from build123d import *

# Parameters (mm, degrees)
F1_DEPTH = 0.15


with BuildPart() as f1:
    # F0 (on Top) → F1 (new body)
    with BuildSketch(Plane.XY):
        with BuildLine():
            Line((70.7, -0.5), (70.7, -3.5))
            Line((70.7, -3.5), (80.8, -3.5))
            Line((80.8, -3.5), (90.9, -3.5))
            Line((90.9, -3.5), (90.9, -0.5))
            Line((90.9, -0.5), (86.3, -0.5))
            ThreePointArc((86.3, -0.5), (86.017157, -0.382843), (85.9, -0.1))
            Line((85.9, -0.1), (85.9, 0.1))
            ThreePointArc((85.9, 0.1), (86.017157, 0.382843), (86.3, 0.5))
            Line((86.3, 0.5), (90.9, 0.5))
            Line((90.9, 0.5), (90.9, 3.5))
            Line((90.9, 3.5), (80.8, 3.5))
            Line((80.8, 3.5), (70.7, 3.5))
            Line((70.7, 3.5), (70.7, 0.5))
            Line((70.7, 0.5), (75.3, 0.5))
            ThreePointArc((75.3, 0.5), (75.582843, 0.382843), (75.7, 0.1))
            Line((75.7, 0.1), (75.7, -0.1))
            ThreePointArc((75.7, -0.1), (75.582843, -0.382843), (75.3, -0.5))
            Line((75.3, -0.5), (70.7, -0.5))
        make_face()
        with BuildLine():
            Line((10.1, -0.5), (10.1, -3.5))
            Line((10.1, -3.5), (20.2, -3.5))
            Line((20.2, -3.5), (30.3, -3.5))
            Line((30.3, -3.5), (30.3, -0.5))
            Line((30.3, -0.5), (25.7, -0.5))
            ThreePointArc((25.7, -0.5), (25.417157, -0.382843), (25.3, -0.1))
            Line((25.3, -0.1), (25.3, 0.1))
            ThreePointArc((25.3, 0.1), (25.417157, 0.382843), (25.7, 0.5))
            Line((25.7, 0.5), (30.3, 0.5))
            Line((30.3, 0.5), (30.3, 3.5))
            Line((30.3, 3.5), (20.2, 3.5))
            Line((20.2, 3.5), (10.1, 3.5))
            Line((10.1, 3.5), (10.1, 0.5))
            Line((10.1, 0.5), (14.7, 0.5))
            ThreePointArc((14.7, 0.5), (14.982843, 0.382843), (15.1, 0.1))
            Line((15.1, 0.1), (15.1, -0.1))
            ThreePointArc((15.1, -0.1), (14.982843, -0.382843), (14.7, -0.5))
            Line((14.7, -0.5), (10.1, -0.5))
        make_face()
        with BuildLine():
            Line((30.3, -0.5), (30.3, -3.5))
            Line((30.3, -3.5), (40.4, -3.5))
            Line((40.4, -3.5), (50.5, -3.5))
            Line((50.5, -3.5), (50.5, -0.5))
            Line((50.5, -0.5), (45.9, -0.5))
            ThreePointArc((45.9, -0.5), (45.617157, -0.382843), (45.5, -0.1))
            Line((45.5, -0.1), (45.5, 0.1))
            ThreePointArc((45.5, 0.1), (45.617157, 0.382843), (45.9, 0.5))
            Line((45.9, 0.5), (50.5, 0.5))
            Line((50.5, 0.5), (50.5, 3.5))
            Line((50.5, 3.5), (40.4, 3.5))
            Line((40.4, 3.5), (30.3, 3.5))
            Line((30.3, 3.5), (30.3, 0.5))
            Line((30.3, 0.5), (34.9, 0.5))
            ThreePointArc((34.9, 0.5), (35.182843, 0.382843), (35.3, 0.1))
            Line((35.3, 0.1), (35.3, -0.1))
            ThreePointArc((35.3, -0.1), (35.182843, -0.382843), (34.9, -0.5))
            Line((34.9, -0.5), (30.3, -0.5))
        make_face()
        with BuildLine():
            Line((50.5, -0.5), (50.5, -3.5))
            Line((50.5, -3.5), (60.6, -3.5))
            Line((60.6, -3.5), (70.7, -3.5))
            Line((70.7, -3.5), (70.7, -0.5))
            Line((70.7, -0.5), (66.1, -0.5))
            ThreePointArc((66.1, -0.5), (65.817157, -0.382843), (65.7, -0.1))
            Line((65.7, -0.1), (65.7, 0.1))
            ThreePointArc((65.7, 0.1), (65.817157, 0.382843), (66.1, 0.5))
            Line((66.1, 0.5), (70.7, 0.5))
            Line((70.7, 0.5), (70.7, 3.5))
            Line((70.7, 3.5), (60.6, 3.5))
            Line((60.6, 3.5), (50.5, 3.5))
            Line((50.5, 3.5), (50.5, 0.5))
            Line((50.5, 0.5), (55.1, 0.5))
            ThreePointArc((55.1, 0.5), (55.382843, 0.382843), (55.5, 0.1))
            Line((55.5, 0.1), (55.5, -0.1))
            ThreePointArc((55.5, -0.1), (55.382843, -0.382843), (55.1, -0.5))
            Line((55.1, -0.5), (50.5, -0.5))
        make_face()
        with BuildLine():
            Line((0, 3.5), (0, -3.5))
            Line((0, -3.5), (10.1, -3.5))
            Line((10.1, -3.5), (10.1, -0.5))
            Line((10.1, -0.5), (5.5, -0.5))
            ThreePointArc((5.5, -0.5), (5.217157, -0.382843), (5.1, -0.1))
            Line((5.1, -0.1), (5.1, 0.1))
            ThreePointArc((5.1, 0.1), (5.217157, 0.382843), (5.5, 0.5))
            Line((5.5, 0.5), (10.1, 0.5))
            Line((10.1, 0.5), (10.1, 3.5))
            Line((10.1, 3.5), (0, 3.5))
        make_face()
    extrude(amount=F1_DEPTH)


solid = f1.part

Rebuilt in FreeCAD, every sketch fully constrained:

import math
import FreeCAD as App
import Part
import Sketcher
from FreeCAD import Vector

doc = App.newDocument("Part")
params = doc.addObject("Spreadsheet::Sheet", "Params")
for row, (alias, value) in enumerate([
    ("sketch1_radius", "0.399999 mm"),
    ("sketch1_height", "3 mm"),
    ("sketch1_height2", "7 mm"),
    ("sketch1_width", "4.6 mm"),
    ("sketch1_width2", "90.9 mm"),
    ("pad1_length", "0.15 mm"),
], start=1):
    params.set(f"A{row}", alias)
    params.set(f"B{row}", "=" + value)
    params.setAlias(f"B{row}", alias)

body = doc.addObject("PartDesign::Body", "Body")

sketch1 = body.newObject("Sketcher::SketchObject", "Sketch")
sketch1.AttachmentSupport = (doc.getObject("XY_Plane"), [""])
sketch1.MapMode = "FlatFace"
sketch1.addGeometry(Part.LineSegment(Vector(90.9, -3.5, 0), Vector(90.9, -0.5, 0)), False)
sketch1.addGeometry(Part.LineSegment(Vector(90.9, -0.5, 0), Vector(86.3, -0.5, 0)), False)
sketch1.addGeometry(Part.ArcOfCircle(Part.Circle(Vector(86.299999, -0.100001, 0), Vector(0, 0, 1), 0.399999), math.radians(179.999859), math.radians(270.000141)), False)
sketch1.addGeometry(Part.LineSegment(Vector(85.9, -0.1, 0), Vector(85.9, 0.1, 0)), False)
sketch1.addGeometry(Part.ArcOfCircle(Part.Circle(Vector(86.299999, 0.100001, 0), Vector(0, 0, 1), 0.399999), math.radians(89.999859), math.radians(180.000141)), False)
sketch1.addGeometry(Part.LineSegment(Vector(86.3, 0.5, 0), Vector(90.9, 0.5, 0)), False)
sketch1.addGeometry(Part.LineSegment(Vector(90.9, 0.5, 0), Vector(90.9, 3.5, 0)), False)
sketch1.addGeometry(Part.LineSegment(Vector(90.9, 3.5, 0), Vector(0, 3.5, 0)), False)
sketch1.addGeometry(Part.LineSegment(Vector(0, 3.5, 0), Vector(0, -3.5, 0)), False)
sketch1.addGeometry(Part.LineSegment(Vector(0, -3.5, 0), Vector(90.9, -3.5, 0)), False)
sketch1.addGeometry(Part.ArcOfCircle(Part.Circle(Vector(14.700001, 0.100001, 0), Vector(0, 0, 1), 0.399999), math.radians(-0.000141), math.radians(90.000141)), False)
sketch1.addGeometry(Part.LineSegment(Vector(15.1, 0.1, 0), Vector(15.1, -0.1, 0)), False)
sketch1.addGeometry(Part.ArcOfCircle(Part.Circle(Vector(14.700001, -0.100001, 0), Vector(0, 0, 1), 0.399999), math.radians(-90.000141), math.radians(0.000141)), False)
sketch1.addGeometry(Part.LineSegment(Vector(14.7, -0.5, 0), Vector(5.5, -0.5, 0)), False)
sketch1.addGeometry(Part.ArcOfCircle(Part.Circle(Vector(5.499999, -0.100001, 0), Vector(0, 0, 1), 0.399999), math.radians(179.999859), math.radians(270.000141)), False)
sketch1.addGeometry(Part.LineSegment(Vector(5.1, -0.1, 0), Vector(5.1, 0.1, 0)), False)
sketch1.addGeometry(Part.ArcOfCircle(Part.Circle(Vector(5.499999, 0.100001, 0), Vector(0, 0, 1), 0.399999), math.radians(89.999859), math.radians(180.000141)), False)
sketch1.addGeometry(Part.LineSegment(Vector(5.5, 0.5, 0), Vector(14.7, 0.5, 0)), False)
sketch1.addGeometry(Part.ArcOfCircle(Part.Circle(Vector(75.300001, 0.100001, 0), Vector(0, 0, 1), 0.399999), math.radians(-0.000141), math.radians(90.000141)), False)
sketch1.addGeometry(Part.LineSegment(Vector(75.7, 0.1, 0), Vector(75.7, -0.1, 0)), False)
sketch1.addGeometry(Part.ArcOfCircle(Part.Circle(Vector(75.300001, -0.100001, 0), Vector(0, 0, 1), 0.399999), math.radians(-90.000141), math.radians(0.000141)), False)
sketch1.addGeometry(Part.LineSegment(Vector(75.3, -0.5, 0), Vector(66.1, -0.5, 0)), False)
sketch1.addGeometry(Part.ArcOfCircle(Part.Circle(Vector(66.099999, -0.100001, 0), Vector(0, 0, 1), 0.399999), math.radians(179.999859), math.radians(270.000141)), False)
sketch1.addGeometry(Part.LineSegment(Vector(65.7, -0.1, 0), Vector(65.7, 0.1, 0)), False)
sketch1.addGeometry(Part.ArcOfCircle(Part.Circle(Vector(66.099999, 0.100001, 0), Vector(0, 0, 1), 0.399999), math.radians(89.999859), math.radians(180.000141)), False)
sketch1.addGeometry(Part.LineSegment(Vector(66.1, 0.5, 0), Vector(75.3, 0.5, 0)), False)
sketch1.addGeometry(Part.LineSegment(Vector(55.1, -0.5, 0), Vector(45.9, -0.5, 0)), False)
sketch1.addGeometry(Part.ArcOfCircle(Part.Circle(Vector(45.899999, -0.100001, 0), Vector(0, 0, 1), 0.399999), math.radians(179.999859), math.radians(270.000141)), False)
sketch1.addGeometry(Part.LineSegment(Vector(45.5, -0.1, 0), Vector(45.5, 0.1, 0)), False)
sketch1.addGeometry(Part.ArcOfCircle(Part.Circle(Vector(45.899999, 0.100001, 0), Vector(0, 0, 1), 0.399999), math.radians(89.999859), math.radians(180.000141)), False)
sketch1.addGeometry(Part.LineSegment(Vector(45.9, 0.5, 0), Vector(55.1, 0.5, 0)), False)
sketch1.addGeometry(Part.ArcOfCircle(Part.Circle(Vector(55.100001, 0.100001, 0), Vector(0, 0, 1), 0.399999), math.radians(-0.000141), math.radians(90.000141)), False)
sketch1.addGeometry(Part.LineSegment(Vector(55.5, 0.1, 0), Vector(55.5, -0.1, 0)), False)
sketch1.addGeometry(Part.ArcOfCircle(Part.Circle(Vector(55.100001, -0.100001, 0), Vector(0, 0, 1), 0.399999), math.radians(-90.000141), math.radians(0.000141)), False)
sketch1.addGeometry(Part.LineSegment(Vector(34.9, -0.5, 0), Vector(25.7, -0.5, 0)), False)
sketch1.addGeometry(Part.ArcOfCircle(Part.Circle(Vector(25.699999, -0.100001, 0), Vector(0, 0, 1), 0.399999), math.radians(179.999859), math.radians(270.000141)), False)
sketch1.addGeometry(Part.LineSegment(Vector(25.3, -0.1, 0), Vector(25.3, 0.1, 0)), False)
sketch1.addGeometry(Part.ArcOfCircle(Part.Circle(Vector(25.699999, 0.100001, 0), Vector(0, 0, 1), 0.399999), math.radians(89.999859), math.radians(180.000141)), False)
sketch1.addGeometry(Part.LineSegment(Vector(25.7, 0.5, 0), Vector(34.9, 0.5, 0)), False)
sketch1.addGeometry(Part.ArcOfCircle(Part.Circle(Vector(34.900001, 0.100001, 0), Vector(0, 0, 1), 0.399999), math.radians(-0.000141), math.radians(90.000141)), False)
sketch1.addGeometry(Part.LineSegment(Vector(35.3, 0.1, 0), Vector(35.3, -0.1, 0)), False)
sketch1.addGeometry(Part.ArcOfCircle(Part.Circle(Vector(34.900001, -0.100001, 0), Vector(0, 0, 1), 0.399999), math.radians(-90.000141), math.radians(0.000141)), False)
sketch1.addConstraint(Sketcher.Constraint("Coincident", 0, 2, 1, 1))
sketch1.addConstraint(Sketcher.Constraint("Coincident", 1, 2, 2, 2))
sketch1.addConstraint(Sketcher.Constraint("Coincident", 2, 1, 3, 1))
sketch1.addConstraint(Sketcher.Constraint("Coincident", 3, 2, 4, 2))
sketch1.addConstraint(Sketcher.Constraint("Coincident", 4, 1, 5, 1))
sketch1.addConstraint(Sketcher.Constraint("Coincident", 5, 2, 6, 1))
sketch1.addConstraint(Sketcher.Constraint("Coincident", 6, 2, 7, 1))
sketch1.addConstraint(Sketcher.Constraint("Coincident", 7, 2, 8, 1))
sketch1.addConstraint(Sketcher.Constraint("Coincident", 8, 2, 9, 1))
sketch1.addConstraint(Sketcher.Constraint("Coincident", 9, 2, 0, 1))
sketch1.addConstraint(Sketcher.Constraint("Coincident", 10, 1, 11, 1))
sketch1.addConstraint(Sketcher.Constraint("Coincident", 11, 2, 12, 2))
sketch1.addConstraint(Sketcher.Constraint("Coincident", 12, 1, 13, 1))
sketch1.addConstraint(Sketcher.Constraint("Coincident", 13, 2, 14, 2))
sketch1.addConstraint(Sketcher.Constraint("Coincident", 14, 1, 15, 1))
sketch1.addConstraint(Sketcher.Constraint("Coincident", 15, 2, 16, 2))
sketch1.addConstraint(Sketcher.Constraint("Coincident", 16, 1, 17, 1))
sketch1.addConstraint(Sketcher.Constraint("Coincident", 17, 2, 10, 2))
sketch1.addConstraint(Sketcher.Constraint("Coincident", 18, 1, 19, 1))
sketch1.addConstraint(Sketcher.Constraint("Coincident", 19, 2, 20, 2))
sketch1.addConstraint(Sketcher.Constraint("Coincident", 20, 1, 21, 1))
sketch1.addConstraint(Sketcher.Constraint("Coincident", 21, 2, 22, 2))
sketch1.addConstraint(Sketcher.Constraint("Coincident", 22, 1, 23, 1))
sketch1.addConstraint(Sketcher.Constraint("Coincident", 23, 2, 24, 2))
sketch1.addConstraint(Sketcher.Constraint("Coincident", 24, 1, 25, 1))
sketch1.addConstraint(Sketcher.Constraint("Coincident", 25, 2, 18, 2))
sketch1.addConstraint(Sketcher.Constraint("Coincident", 26, 2, 27, 2))
sketch1.addConstraint(Sketcher.Constraint("Coincident", 27, 1, 28, 1))
sketch1.addConstraint(Sketcher.Constraint("Coincident", 28, 2, 29, 2))
sketch1.addConstraint(Sketcher.Constraint("Coincident", 29, 1, 30, 1))
sketch1.addConstraint(Sketcher.Constraint("Coincident", 30, 2, 31, 2))
sketch1.addConstraint(Sketcher.Constraint("Coincident", 31, 1, 32, 1))
sketch1.addConstraint(Sketcher.Constraint("Coincident", 32, 2, 33, 2))
sketch1.addConstraint(Sketcher.Constraint("Coincident", 33, 1, 26, 1))
sketch1.addConstraint(Sketcher.Constraint("Coincident", 34, 2, 35, 2))
sketch1.addConstraint(Sketcher.Constraint("Coincident", 35, 1, 36, 1))
sketch1.addConstraint(Sketcher.Constraint("Coincident", 36, 2, 37, 2))
sketch1.addConstraint(Sketcher.Constraint("Coincident", 37, 1, 38, 1))
sketch1.addConstraint(Sketcher.Constraint("Coincident", 38, 2, 39, 2))
sketch1.addConstraint(Sketcher.Constraint("Coincident", 39, 1, 40, 1))
sketch1.addConstraint(Sketcher.Constraint("Coincident", 40, 2, 41, 2))
sketch1.addConstraint(Sketcher.Constraint("Coincident", 41, 1, 34, 1))
sketch1.addConstraint(Sketcher.Constraint("Vertical", 0))
sketch1.addConstraint(Sketcher.Constraint("Horizontal", 1))
sketch1.addConstraint(Sketcher.Constraint("Vertical", 3))
sketch1.addConstraint(Sketcher.Constraint("Horizontal", 5))
sketch1.addConstraint(Sketcher.Constraint("Vertical", 6))
sketch1.addConstraint(Sketcher.Constraint("Horizontal", 7))
sketch1.addConstraint(Sketcher.Constraint("Vertical", 8))
sketch1.addConstraint(Sketcher.Constraint("Horizontal", 9))
sketch1.addConstraint(Sketcher.Constraint("Vertical", 11))
sketch1.addConstraint(Sketcher.Constraint("Horizontal", 13))
sketch1.addConstraint(Sketcher.Constraint("Vertical", 15))
sketch1.addConstraint(Sketcher.Constraint("Horizontal", 17))
sketch1.addConstraint(Sketcher.Constraint("Vertical", 19))
sketch1.addConstraint(Sketcher.Constraint("Horizontal", 21))
sketch1.addConstraint(Sketcher.Constraint("Vertical", 23))
sketch1.addConstraint(Sketcher.Constraint("Horizontal", 25))
sketch1.addConstraint(Sketcher.Constraint("Horizontal", 26))
sketch1.addConstraint(Sketcher.Constraint("Vertical", 28))
sketch1.addConstraint(Sketcher.Constraint("Horizontal", 30))
sketch1.addConstraint(Sketcher.Constraint("Vertical", 32))
sketch1.addConstraint(Sketcher.Constraint("Horizontal", 34))
sketch1.addConstraint(Sketcher.Constraint("Vertical", 36))
sketch1.addConstraint(Sketcher.Constraint("Horizontal", 38))
sketch1.addConstraint(Sketcher.Constraint("Vertical", 40))
sketch1.addConstraint(Sketcher.Constraint("Equal", 2, 4))
sketch1.addConstraint(Sketcher.Constraint("Equal", 4, 10))
sketch1.addConstraint(Sketcher.Constraint("Equal", 10, 12))
sketch1.addConstraint(Sketcher.Constraint("Equal", 12, 14))
sketch1.addConstraint(Sketcher.Constraint("Equal", 14, 16))
sketch1.addConstraint(Sketcher.Constraint("Equal", 16, 18))
sketch1.addConstraint(Sketcher.Constraint("Equal", 18, 20))
sketch1.addConstraint(Sketcher.Constraint("Equal", 20, 22))
sketch1.addConstraint(Sketcher.Constraint("Equal", 22, 24))
sketch1.addConstraint(Sketcher.Constraint("Equal", 24, 27))
sketch1.addConstraint(Sketcher.Constraint("Equal", 27, 29))
sketch1.addConstraint(Sketcher.Constraint("Equal", 29, 31))
sketch1.addConstraint(Sketcher.Constraint("Equal", 31, 33))
sketch1.addConstraint(Sketcher.Constraint("Equal", 33, 35))
sketch1.addConstraint(Sketcher.Constraint("Equal", 35, 37))
sketch1.addConstraint(Sketcher.Constraint("Equal", 37, 39))
sketch1.addConstraint(Sketcher.Constraint("Equal", 39, 41))
sketch1.addConstraint(Sketcher.Constraint("Symmetric", 7, 2, 8, 2, -1, 1))
sketch1.addConstraint(Sketcher.Constraint("Symmetric", 1, 2, 4, 1, -1))
sketch1.addConstraint(Sketcher.Constraint("Symmetric", 13, 2, 16, 1, -1))
sketch1.addConstraint(Sketcher.Constraint("Symmetric", 21, 2, 24, 1, -1))
sketch1.addConstraint(Sketcher.Constraint("Symmetric", 26, 2, 29, 1, -1))
sketch1.addConstraint(Sketcher.Constraint("Symmetric", 34, 2, 37, 1, -1))
sketch1.addConstraint(Sketcher.Constraint("Horizontal", 4, 3, 10, 3))
sketch1.addConstraint(Sketcher.Constraint("Horizontal", 16, 3, 18, 3))
sketch1.addConstraint(Sketcher.Constraint("Horizontal", 22, 3, 27, 3))
sketch1.addConstraint(Sketcher.Constraint("Horizontal", 33, 3, 35, 3))
sketch1.addConstraint(Sketcher.Constraint("Horizontal", 41, 3, 2, 1))
sketch1.addConstraint(Sketcher.Constraint("Horizontal", 39, 3, 3, 2))
sketch1.addConstraint(Sketcher.Constraint("Horizontal", 3, 2, 10, 1))
sketch1.addConstraint(Sketcher.Constraint("Horizontal", 2, 1, 11, 2))
sketch1.addConstraint(Sketcher.Constraint("Horizontal", 11, 2, 14, 1))
sketch1.addConstraint(Sketcher.Constraint("Horizontal", 10, 1, 15, 2))
sketch1.addConstraint(Sketcher.Constraint("Horizontal", 15, 2, 18, 1))
sketch1.addConstraint(Sketcher.Constraint("Horizontal", 14, 1, 19, 2))
sketch1.addConstraint(Sketcher.Constraint("Horizontal", 19, 2, 22, 1))
sketch1.addConstraint(Sketcher.Constraint("Horizontal", 18, 1, 23, 2))
sketch1.addConstraint(Sketcher.Constraint("Horizontal", 22, 1, 27, 1))
sketch1.addConstraint(Sketcher.Constraint("Horizontal", 23, 2, 28, 2))
sketch1.addConstraint(Sketcher.Constraint("Horizontal", 28, 2, 31, 1))
sketch1.addConstraint(Sketcher.Constraint("Horizontal", 27, 1, 32, 2))
sketch1.addConstraint(Sketcher.Constraint("Horizontal", 32, 2, 35, 1))
sketch1.addConstraint(Sketcher.Constraint("Horizontal", 31, 1, 36, 2))
sketch1.addConstraint(Sketcher.Constraint("Horizontal", 36, 2, 39, 1))
sketch1.addConstraint(Sketcher.Constraint("Horizontal", 35, 1, 40, 2))
sketch1.addConstraint(Sketcher.Constraint("Vertical", 4, 3, 1, 2))
sketch1.addConstraint(Sketcher.Constraint("Vertical", 0, 2, 5, 2))
sketch1.addConstraint(Sketcher.Constraint("Vertical", 10, 3, 12, 1))
sketch1.addConstraint(Sketcher.Constraint("Vertical", 16, 3, 13, 2))
sketch1.addConstraint(Sketcher.Constraint("Vertical", 12, 1, 17, 2))
sketch1.addConstraint(Sketcher.Constraint("Vertical", 18, 3, 20, 1))
sketch1.addConstraint(Sketcher.Constraint("Vertical", 24, 3, 21, 2))
sketch1.addConstraint(Sketcher.Constraint("Vertical", 20, 1, 25, 2))
sketch1.addConstraint(Sketcher.Constraint("Vertical", 29, 3, 26, 2))
sketch1.addConstraint(Sketcher.Constraint("Vertical", 33, 3, 30, 2))
sketch1.addConstraint(Sketcher.Constraint("Vertical", 30, 2, 33, 1))
sketch1.addConstraint(Sketcher.Constraint("Vertical", 37, 3, 34, 2))
sketch1.addConstraint(Sketcher.Constraint("Vertical", 41, 3, 38, 2))
sketch1.addConstraint(Sketcher.Constraint("Vertical", 38, 2, 41, 1))
sketch1.addConstraint(Sketcher.Constraint("Equal", 17, 21))
sketch1.addConstraint(Sketcher.Constraint("Equal", 25, 26))
sketch1.addConstraint(Sketcher.Constraint("Equal", 30, 34))
sketch1.addConstraint(Sketcher.Constraint("Radius", 2, 0.399999))
sketch1.addConstraint(Sketcher.Constraint("DistanceY", 0, 1, 0, 2, 3.0))
sketch1.addConstraint(Sketcher.Constraint("DistanceY", 8, 2, 8, 1, 7.0))
sketch1.addConstraint(Sketcher.Constraint("DistanceX", 1, 2, 1, 1, 4.6))
sketch1.addConstraint(Sketcher.Constraint("DistanceX", 7, 2, 7, 1, 90.9))
sketch1.addConstraint(Sketcher.Constraint("DistanceX", 13, 2, 13, 1, 9.2))
sketch1.addConstraint(Sketcher.Constraint("DistanceX", 18, 3, 4, 3, 10.999998))
sketch1.addConstraint(Sketcher.Constraint("DistanceX", 31, 3, 24, 3, 10.999998))
sketch1.addConstraint(Sketcher.Constraint("DistanceX", 12, 3, 35, 3, 10.999998))
sketch1.addConstraint(Sketcher.Constraint("DistanceX", 39, 3, 29, 3, 10.999998))
sketch1.setExpression("Constraints[128]", "Params.sketch1_radius")
sketch1.setExpression("Constraints[129]", "Params.sketch1_height")
sketch1.setExpression("Constraints[130]", "Params.sketch1_height2")
sketch1.setExpression("Constraints[131]", "Params.sketch1_width")
sketch1.setExpression("Constraints[132]", "Params.sketch1_width2")
pad1 = body.newObject("PartDesign::Pad", "Pad")
pad1.Profile = sketch1
pad1.setExpression("Length", "Params.pad1_length")

doc.recompute()
